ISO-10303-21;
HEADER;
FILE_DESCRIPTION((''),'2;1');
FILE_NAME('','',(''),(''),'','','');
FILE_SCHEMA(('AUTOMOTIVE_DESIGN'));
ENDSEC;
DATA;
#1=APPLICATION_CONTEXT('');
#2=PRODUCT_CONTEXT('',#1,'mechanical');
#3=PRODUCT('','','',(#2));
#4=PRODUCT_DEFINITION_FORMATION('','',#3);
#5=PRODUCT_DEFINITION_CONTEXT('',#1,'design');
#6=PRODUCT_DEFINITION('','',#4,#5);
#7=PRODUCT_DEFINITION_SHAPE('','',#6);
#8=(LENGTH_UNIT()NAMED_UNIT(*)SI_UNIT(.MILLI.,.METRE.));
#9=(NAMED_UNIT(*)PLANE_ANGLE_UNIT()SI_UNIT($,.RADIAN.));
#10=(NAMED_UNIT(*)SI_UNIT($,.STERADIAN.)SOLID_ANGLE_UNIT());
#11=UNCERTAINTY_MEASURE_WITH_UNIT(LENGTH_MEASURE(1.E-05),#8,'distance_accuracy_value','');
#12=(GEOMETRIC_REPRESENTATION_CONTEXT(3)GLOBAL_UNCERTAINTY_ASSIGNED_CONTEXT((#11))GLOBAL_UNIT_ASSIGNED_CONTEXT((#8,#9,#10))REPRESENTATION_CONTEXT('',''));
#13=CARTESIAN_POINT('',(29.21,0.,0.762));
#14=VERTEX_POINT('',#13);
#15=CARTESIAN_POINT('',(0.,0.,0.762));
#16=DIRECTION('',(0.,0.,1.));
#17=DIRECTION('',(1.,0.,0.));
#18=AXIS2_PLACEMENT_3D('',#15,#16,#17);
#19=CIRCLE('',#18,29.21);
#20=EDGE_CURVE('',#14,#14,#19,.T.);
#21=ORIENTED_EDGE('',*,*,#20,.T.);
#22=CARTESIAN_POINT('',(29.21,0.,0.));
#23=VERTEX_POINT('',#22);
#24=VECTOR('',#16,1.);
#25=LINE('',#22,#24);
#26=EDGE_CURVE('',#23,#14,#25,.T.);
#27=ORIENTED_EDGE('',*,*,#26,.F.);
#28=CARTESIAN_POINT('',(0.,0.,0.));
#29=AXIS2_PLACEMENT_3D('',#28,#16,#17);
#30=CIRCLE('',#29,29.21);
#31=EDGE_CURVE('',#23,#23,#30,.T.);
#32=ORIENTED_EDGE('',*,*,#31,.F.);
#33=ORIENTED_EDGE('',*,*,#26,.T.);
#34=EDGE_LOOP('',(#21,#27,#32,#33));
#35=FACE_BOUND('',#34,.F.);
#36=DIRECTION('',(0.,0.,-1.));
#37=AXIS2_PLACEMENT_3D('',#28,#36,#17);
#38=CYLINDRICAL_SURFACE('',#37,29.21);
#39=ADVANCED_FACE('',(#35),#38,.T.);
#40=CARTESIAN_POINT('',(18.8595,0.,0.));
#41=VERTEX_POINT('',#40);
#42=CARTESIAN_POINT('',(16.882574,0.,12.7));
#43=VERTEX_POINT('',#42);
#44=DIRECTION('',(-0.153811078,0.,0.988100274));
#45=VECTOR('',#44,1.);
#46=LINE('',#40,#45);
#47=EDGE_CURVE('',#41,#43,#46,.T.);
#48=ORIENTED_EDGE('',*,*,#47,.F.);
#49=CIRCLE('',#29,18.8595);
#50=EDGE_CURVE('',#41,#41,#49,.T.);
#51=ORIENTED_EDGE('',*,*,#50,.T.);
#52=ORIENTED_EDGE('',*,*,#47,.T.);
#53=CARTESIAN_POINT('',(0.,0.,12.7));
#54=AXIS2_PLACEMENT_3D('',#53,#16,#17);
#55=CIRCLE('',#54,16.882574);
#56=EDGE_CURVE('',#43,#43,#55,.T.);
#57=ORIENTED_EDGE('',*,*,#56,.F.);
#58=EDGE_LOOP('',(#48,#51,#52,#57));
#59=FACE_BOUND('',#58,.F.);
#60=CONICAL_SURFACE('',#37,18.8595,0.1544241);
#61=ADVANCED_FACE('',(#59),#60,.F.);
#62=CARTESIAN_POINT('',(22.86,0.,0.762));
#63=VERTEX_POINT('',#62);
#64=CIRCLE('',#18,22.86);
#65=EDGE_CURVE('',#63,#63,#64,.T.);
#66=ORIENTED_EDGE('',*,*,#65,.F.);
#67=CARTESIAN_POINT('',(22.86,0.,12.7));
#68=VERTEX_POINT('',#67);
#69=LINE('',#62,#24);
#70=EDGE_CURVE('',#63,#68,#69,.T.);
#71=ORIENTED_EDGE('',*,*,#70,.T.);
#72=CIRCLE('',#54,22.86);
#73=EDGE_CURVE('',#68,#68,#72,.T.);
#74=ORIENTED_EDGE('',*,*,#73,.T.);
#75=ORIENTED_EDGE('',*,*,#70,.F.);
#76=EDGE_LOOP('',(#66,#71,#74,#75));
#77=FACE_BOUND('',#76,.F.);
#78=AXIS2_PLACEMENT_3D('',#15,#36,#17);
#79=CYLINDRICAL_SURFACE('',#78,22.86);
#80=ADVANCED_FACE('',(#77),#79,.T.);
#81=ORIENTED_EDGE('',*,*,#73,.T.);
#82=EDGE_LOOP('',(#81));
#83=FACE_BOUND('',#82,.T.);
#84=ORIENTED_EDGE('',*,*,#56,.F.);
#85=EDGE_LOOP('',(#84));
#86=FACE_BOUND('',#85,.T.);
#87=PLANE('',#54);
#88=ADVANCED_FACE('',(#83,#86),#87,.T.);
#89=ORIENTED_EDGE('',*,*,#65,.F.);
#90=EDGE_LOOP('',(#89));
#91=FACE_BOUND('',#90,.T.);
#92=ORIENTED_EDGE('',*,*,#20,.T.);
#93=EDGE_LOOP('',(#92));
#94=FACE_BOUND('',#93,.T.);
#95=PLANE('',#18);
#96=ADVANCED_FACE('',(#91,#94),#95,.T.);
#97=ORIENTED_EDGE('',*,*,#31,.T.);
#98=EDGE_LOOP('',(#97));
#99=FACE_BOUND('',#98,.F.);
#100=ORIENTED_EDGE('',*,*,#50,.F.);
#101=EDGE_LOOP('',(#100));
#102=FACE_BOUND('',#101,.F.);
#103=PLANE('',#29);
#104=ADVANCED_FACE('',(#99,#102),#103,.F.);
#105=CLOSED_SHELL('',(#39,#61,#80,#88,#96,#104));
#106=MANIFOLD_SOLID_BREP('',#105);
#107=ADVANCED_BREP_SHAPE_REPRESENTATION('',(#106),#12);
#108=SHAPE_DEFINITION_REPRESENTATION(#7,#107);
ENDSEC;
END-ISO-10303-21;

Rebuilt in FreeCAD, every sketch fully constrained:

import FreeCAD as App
import Part
import Sketcher
Q = App.Units.Quantity


def add_polygon(sketch, points):
    """Adds a closed chain of lines whose ends are joined by coincident constraints."""
    first, n = sketch.GeometryCount, len(points)
    for a, b in zip(points, points[1:] + points[:1]):
        sketch.addGeometry(Part.LineSegment(App.Vector(*a, 0), App.Vector(*b, 0)), False)
    for i in range(n):
        sketch.addConstraint(Sketcher.Constraint("Coincident", first + i, 2, first + (i + 1) % n, 1))

doc = App.newDocument("Part")
body = doc.addObject("PartDesign::Body", "Body")

# Sketch on XY plane
sketch1 = doc.addObject("Sketcher::SketchObject", "Sketch")
body.addObject(sketch1)
sketch1.AttachmentSupport = (doc.XY_Plane, [""])
sketch1.MapMode = "FlatFace"
sketch1.addGeometry(Part.Circle(App.Vector(0, 0, 0), App.Vector(0, 0, 1), 29.21), False)
sketch1.addConstraint([
    Sketcher.Constraint("Coincident", 0, 3, -1, 1),
    Sketcher.Constraint("Diameter", 0, Q("2.3 in")),
])
pad1 = doc.addObject("PartDesign::Pad", "Pad")
body.addObject(pad1)
pad1.Profile = sketch1
pad1.Length = Q("0.03 in")

# Sketch on XY plane
sketch2 = doc.addObject("Sketcher::SketchObject", "Sketch001")
body.addObject(sketch2)
sketch2.AttachmentSupport = (doc.XY_Plane, [""])
sketch2.MapMode = "FlatFace"
sketch2.AttachmentOffset = App.Placement(App.Vector(0, 0, 0.03 * 25.4), App.Rotation())
sketch2.addGeometry(Part.Circle(App.Vector(0, 0, 0), App.Vector(0, 0, 1), 22.86), False)
sketch2.addConstraint([
    Sketcher.Constraint("Coincident", 0, 3, -1, 1),
    Sketcher.Constraint("Diameter", 0, Q("1.8 in")),
])
pad2 = doc.addObject("PartDesign::Pad", "Pad001")
body.addObject(pad2)
pad2.Profile = sketch2
pad2.Length = Q("0.47 in")

# Sketch on XZ plane
sketch3 = doc.addObject("Sketcher::SketchObject", "Sketch002")
body.addObject(sketch3)
sketch3.AttachmentSupport = (doc.XZ_Plane, [""])
sketch3.MapMode = "FlatFace"
add_polygon(sketch3, [(0, 39.243), (0, 0), (18.8595, 0), (12.7508, 39.243)])  # lines 0-3
sketch3.addConstraint([
    Sketcher.Constraint("Vertical", 0),
    Sketcher.Constraint("Horizontal", 1),
    Sketcher.Constraint("Horizontal", 3),
    Sketcher.Constraint("Coincident", 0, 2, -1, 1),
    Sketcher.Constraint("DistanceX", 3, 2, 3, 1, Q("0.502 in")),
    Sketcher.Constraint("DistanceY", 0, 2, 0, 1, Q("1.545 in")),
    Sketcher.Constraint("DistanceX", 1, 1, 1, 2, Q("0.7425 in")),
])
groove = doc.addObject("PartDesign::Groove", "Groove")
body.addObject(groove)
groove.Profile = sketch3
groove.ReferenceAxis = (sketch3, ["V_Axis"])
groove.Angle = 360

doc.recompute()
